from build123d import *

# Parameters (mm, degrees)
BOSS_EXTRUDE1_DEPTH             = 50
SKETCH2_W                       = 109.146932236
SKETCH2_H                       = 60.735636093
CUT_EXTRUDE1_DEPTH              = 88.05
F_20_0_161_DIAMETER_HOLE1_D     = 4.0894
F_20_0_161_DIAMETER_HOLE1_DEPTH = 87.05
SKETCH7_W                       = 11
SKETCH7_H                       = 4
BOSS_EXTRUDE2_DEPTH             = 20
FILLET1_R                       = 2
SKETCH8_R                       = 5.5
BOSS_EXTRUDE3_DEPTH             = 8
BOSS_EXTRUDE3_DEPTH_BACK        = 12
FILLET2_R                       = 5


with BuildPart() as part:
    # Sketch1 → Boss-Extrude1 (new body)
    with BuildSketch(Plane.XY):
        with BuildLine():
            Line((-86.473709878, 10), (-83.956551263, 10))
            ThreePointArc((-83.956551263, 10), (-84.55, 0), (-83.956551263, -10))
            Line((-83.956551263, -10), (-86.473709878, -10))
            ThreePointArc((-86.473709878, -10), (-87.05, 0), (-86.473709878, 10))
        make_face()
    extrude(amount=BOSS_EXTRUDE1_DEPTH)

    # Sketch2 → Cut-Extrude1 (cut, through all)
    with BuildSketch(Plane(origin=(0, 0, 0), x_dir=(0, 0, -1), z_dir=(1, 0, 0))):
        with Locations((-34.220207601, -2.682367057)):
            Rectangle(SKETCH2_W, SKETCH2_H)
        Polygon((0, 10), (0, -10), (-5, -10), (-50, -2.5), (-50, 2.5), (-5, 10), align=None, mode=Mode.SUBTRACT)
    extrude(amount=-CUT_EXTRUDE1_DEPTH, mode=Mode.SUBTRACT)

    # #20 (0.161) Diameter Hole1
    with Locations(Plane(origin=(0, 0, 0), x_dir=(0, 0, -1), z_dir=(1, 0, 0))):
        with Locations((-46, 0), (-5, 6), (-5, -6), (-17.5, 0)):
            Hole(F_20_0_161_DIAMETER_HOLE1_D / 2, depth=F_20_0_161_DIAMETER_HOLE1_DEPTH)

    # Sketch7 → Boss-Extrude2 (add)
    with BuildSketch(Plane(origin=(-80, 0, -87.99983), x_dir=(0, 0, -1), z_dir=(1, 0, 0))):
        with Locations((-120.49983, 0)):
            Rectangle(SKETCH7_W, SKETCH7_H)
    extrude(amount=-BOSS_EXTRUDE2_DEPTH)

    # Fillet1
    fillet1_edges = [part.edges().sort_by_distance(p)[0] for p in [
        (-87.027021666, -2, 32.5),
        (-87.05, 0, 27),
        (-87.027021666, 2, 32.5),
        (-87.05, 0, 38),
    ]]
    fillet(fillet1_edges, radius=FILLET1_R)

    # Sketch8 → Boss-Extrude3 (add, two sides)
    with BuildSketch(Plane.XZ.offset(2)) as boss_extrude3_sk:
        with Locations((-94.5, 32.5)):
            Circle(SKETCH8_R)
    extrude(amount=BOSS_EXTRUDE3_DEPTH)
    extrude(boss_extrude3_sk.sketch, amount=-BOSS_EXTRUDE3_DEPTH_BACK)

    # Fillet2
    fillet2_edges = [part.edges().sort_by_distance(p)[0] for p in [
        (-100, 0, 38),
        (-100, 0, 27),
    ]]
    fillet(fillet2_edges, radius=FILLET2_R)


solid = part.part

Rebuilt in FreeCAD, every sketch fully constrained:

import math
import FreeCAD as App
import Part
import Sketcher

V = App.Vector


def edges_at(feature, points):
    """Names of the edges that pass closest to the given points."""
    edges = feature.Shape.Edges
    near = lambda p: min(range(len(edges)), key=lambda i: edges[i].distToShape(Part.Vertex(*p))[0])
    return sorted({f"Edge{near(p) + 1}" for p in points})

doc = App.newDocument("Part")
body = doc.addObject("PartDesign::Body", "Body")

# Sketch on XY plane
sketch1 = body.newObject("Sketcher::SketchObject", "Sketch")
sketch1.AttachmentSupport = (doc.getObject("XY_Plane"), [""])
sketch1.MapMode = "FlatFace"
sketch1.addGeometry([
    Part.LineSegment(V(-84, 10, 0), V(-86.5, 10, 0)),
    Part.ArcOfCircle(Part.Circle(V(0, 0, 0), V(0, 0, 1), 87.1), math.radians(173.4), math.radians(186.6)),
    Part.LineSegment(V(-86.5, -10, 0), V(-84, -10, 0)),
    Part.ArcOfCircle(Part.Circle(V(0, 0, 0), V(0, 0, 1), 84.5), math.radians(173.21), math.radians(186.79)),
], False)
sketch1.addConstraint([
    Sketcher.Constraint("Coincident", 0, 2, 1, 1),
    Sketcher.Constraint("Coincident", 1, 2, 2, 1),
    Sketcher.Constraint("Coincident", 2, 2, 3, 2),
    Sketcher.Constraint("Coincident", 3, 1, 0, 1),
    Sketcher.Constraint("Horizontal", 0),
    Sketcher.Constraint("Horizontal", 2),
    Sketcher.Constraint("Coincident", 1, 3, -1, 1),
    Sketcher.Constraint("Coincident", 3, 3, -1, 1),
    Sketcher.Constraint("Vertical", 0, 2, 1, 2),
    Sketcher.Constraint("Radius", 1, 87.05),
    Sketcher.Constraint("Radius", 3, 84.55),
    Sketcher.Constraint("DistanceY", -1, 1, 0, 2, 10.0),
])
pad1 = body.newObject("PartDesign::Pad", "Pad")
pad1.Profile = sketch1
pad1.Length = 50

# Sketch on YZ plane
sketch2 = body.newObject("Sketcher::SketchObject", "Sketch001")
sketch2.AttachmentSupport = (doc.getObject("YZ_Plane"), [""])
sketch2.MapMode = "FlatFace"
sketch2.addGeometry([
    Part.LineSegment(V(28, 89, 0), V(-33, 89, 0)),  # 0
    Part.LineSegment(V(-33, 89, 0), V(-33, -20, 0)),  # 1
    Part.LineSegment(V(-33, -20, 0), V(28, -20, 0)),  # 2
    Part.LineSegment(V(28, -20, 0), V(28, 89, 0)),  # 3
    Part.LineSegment(V(10, 5, 0), V(10, 0, 0)),  # 4
    Part.LineSegment(V(10, 0, 0), V(-10, 0, 0)),  # 5
    Part.LineSegment(V(-10, 0, 0), V(-10, 5, 0)),  # 6
    Part.LineSegment(V(-10, 5, 0), V(-2, 50, 0)),  # 7
    Part.LineSegment(V(-2, 50, 0), V(2, 50, 0)),  # 8
    Part.LineSegment(V(2, 50, 0), V(10, 5, 0)),  # 9
], False)
sketch2.addConstraint([
    Sketcher.Constraint("Coincident", 0, 2, 1, 1),
    Sketcher.Constraint("Coincident", 1, 2, 2, 1),
    Sketcher.Constraint("Coincident", 2, 2, 3, 1),
    Sketcher.Constraint("Coincident", 3, 2, 0, 1),
    Sketcher.Constraint("Coincident", 4, 2, 5, 1),
    Sketcher.Constraint("Coincident", 5, 2, 6, 1),
    Sketcher.Constraint("Coincident", 6, 2, 7, 1),
    Sketcher.Constraint("Coincident", 7, 2, 8, 1),
    Sketcher.Constraint("Coincident", 8, 2, 9, 1),
    Sketcher.Constraint("Coincident", 9, 2, 4, 1),
    Sketcher.Constraint("Horizontal", 0),
    Sketcher.Constraint("Vertical", 1),
    Sketcher.Constraint("Horizontal", 2),
    Sketcher.Constraint("Vertical", 3),
    Sketcher.Constraint("Vertical", 4),
    Sketcher.Constraint("Horizontal", 5),
    Sketcher.Constraint("Vertical", 6),
    Sketcher.Constraint("Horizontal", 8),
    Sketcher.Constraint("Symmetric", 4, 2, 5, 2, -1, 1),
    Sketcher.Constraint("Horizontal", 6, 2, 9, 2),
    Sketcher.Constraint("Equal", 8, 4),
    Sketcher.Constraint("Equal", 7, 9),
    Sketcher.Constraint("DistanceX", 5, 2, 5, 1, 20.0),
    Sketcher.Constraint("DistanceX", 8, 1, 8, 2, 5.0),
    Sketcher.Constraint("DistanceY", -1, 1, 7, 2, 50.0),
    Sketcher.Constraint("DistanceX", 0, 2, 0, 1, 60.735636),
    Sketcher.Constraint("DistanceY", 1, 2, 1, 1, 109.146932),
    Sketcher.Constraint("DistanceY", 1, 2, -1, 1, 20.353259),
    Sketcher.Constraint("DistanceX", -1, 1, 2, 2, 27.685451),
])
pocket1 = body.newObject("PartDesign::Pocket", "Pocket")
pocket1.Profile = sketch2
pocket1.Type = "ThroughAll"

# Sketch on YZ plane
sketch3 = body.newObject("Sketcher::SketchObject", "Sketch002")
sketch3.AttachmentSupport = (doc.getObject("YZ_Plane"), [""])
sketch3.MapMode = "FlatFace"
sketch3.addGeometry([
    Part.Circle(V(0, 46, 0), V(0, 0, 1), 2),
    Part.Circle(V(6, 5, 0), V(0, 0, 1), 2),
    Part.Circle(V(-6, 5, 0), V(0, 0, 1), 2),
    Part.Circle(V(0, 17.5, 0), V(0, 0, 1), 2),
], False)
sketch3.addConstraint([
    Sketcher.Constraint("Equal", 0, 1),
    Sketcher.Constraint("Equal", 1, 2),
    Sketcher.Constraint("Equal", 2, 3),
    Sketcher.Constraint("Symmetric", 1, 3, 2, 3, -2),
    Sketcher.Constraint("PointOnObject", 0, 3, -2),
    Sketcher.Constraint("PointOnObject", 3, 3, -2),
    Sketcher.Constraint("DistanceY", -1, 1, 0, 3, 46.0),
    Sketcher.Constraint("DistanceX", -1, 1, 1, 3, 6.0),
    Sketcher.Constraint("DistanceY", -1, 1, 1, 3, 5.0),
    Sketcher.Constraint("Diameter", 0, 4.0894),
    Sketcher.Constraint("DistanceY", -1, 1, 3, 3, 17.5),
])
doc.recompute()
hole = body.newObject("PartDesign::Hole", "Hole")
hole.Profile = sketch3
hole.ThreadType = "None"
hole.Diameter = 4.0894
hole.DepthType = "Dimension"
hole.Depth = 87.05
hole.DrillPoint = "Flat"

# Sketch on YZ plane
sketch4 = body.newObject("Sketcher::SketchObject", "Sketch003")
sketch4.AttachmentSupport = (doc.getObject("YZ_Plane"), [""])
sketch4.MapMode = "FlatFace"
sketch4.AttachmentOffset = App.Placement(V(0, 0, -80), App.Rotation())
sketch4.addGeometry([
    Part.LineSegment(V(2, 38, 0), V(-2, 38, 0)),
    Part.LineSegment(V(-2, 38, 0), V(-2, 27, 0)),
    Part.LineSegment(V(-2, 27, 0), V(2, 27, 0)),
    Part.LineSegment(V(2, 27, 0), V(2, 38, 0)),
], False)
sketch4.addConstraint([
    Sketcher.Constraint("Coincident", 0, 2, 1, 1),
    Sketcher.Constraint("Coincident", 1, 2, 2, 1),
    Sketcher.Constraint("Coincident", 2, 2, 3, 1),
    Sketcher.Constraint("Coincident", 3, 2, 0, 1),
    Sketcher.Constraint("Horizontal", 0),
    Sketcher.Constraint("Vertical", 1),
    Sketcher.Constraint("Horizontal", 2),
    Sketcher.Constraint("Vertical", 3),
    Sketcher.Constraint("DistanceX", 0, 2, 0, 1, 4.0),
    Sketcher.Constraint("DistanceY", 1, 2, 1, 1, 11.0),
    Sketcher.Constraint("DistanceX", 0, 2, -1, 1, 2.0),
    Sketcher.Constraint("DistanceY", -1, 1, 0, 2, 38.0),
])
pad2 = body.newObject("PartDesign::Pad", "Pad001")
pad2.Profile = sketch4
pad2.Length = 20
pad2.Reversed = True
doc.recompute()

fillet = body.newObject("PartDesign::Fillet", "Fillet")
fillet.Base = (pad2, edges_at(pad2, [
    (-87.027, -2, 32.5),
    (-87.05, 0, 27),
    (-87.027, 2, 32.5),
    (-87.05, 0, 38),
]))
fillet.Radius = 2

# Sketch on XZ plane
sketch5 = body.newObject("Sketcher::SketchObject", "Sketch004")
sketch5.AttachmentSupport = (doc.getObject("XZ_Plane"), [""])
sketch5.MapMode = "FlatFace"
sketch5.AttachmentOffset = App.Placement(V(0, 0, 2), App.Rotation())
sketch5.addGeometry(Part.Circle(V(-94, 32, 0), V(0, 0, 1), 6), False)
sketch5.addConstraint([
    Sketcher.Constraint("Diameter", 0, 11.0),
    Sketcher.Constraint("DistanceX", 0, 3, -1, 1, 94.5),
    Sketcher.Constraint("DistanceY", -1, 1, 0, 3, 32.5),
])
pad3 = body.newObject("PartDesign::Pad", "Pad002")
pad3.Profile = sketch5
pad3.Type = "TwoLengths"
pad3.Length = 8
pad3.Length2 = 12
doc.recompute()

fillet2 = body.newObject("PartDesign::Fillet", "Fillet001")
fillet2.Base = (pad3, edges_at(pad3, [(-100, 0, 38), (-100, 0, 27)]))
fillet2.Radius = 5

doc.recompute()
